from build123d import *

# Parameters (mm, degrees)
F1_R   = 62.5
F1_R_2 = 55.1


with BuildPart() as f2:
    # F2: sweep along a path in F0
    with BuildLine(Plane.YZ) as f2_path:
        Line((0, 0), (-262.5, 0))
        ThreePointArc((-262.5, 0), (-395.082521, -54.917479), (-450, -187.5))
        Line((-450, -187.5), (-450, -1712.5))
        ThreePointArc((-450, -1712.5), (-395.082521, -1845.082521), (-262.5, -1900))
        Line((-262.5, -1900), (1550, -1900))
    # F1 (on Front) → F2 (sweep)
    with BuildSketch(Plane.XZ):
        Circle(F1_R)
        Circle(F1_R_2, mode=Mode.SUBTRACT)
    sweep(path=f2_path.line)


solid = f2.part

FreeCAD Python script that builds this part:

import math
import FreeCAD as App
import Part
import Sketcher
from FreeCAD import Vector
Q = App.Units.Quantity

doc = App.newDocument("Part")
params = doc.addObject("Spreadsheet::Sheet", "Params")
for row, (alias, value) in enumerate([
    ("sketch1_diameter", "125 mm"),
    ("sketch1_diameter2", "110.2 mm"),
    ("sketch2_radius", "187.500002 mm"),
    ("sketch2_height", "1525 mm"),
    ("sketch2_width", "262.5 mm"),
    ("sketch2_width2", "1812.5 mm"),
], start=1):
    params.set(f"A{row}", alias)
    params.set(f"B{row}", "=" + value)
    params.setAlias(f"B{row}", alias)

body = doc.addObject("PartDesign::Body", "Body")

sketch1 = doc.addObject("Sketcher::SketchObject", "Sketch")
body.addObject(sketch1)
sketch1.AttachmentSupport = (doc.XZ_Plane, [""])
sketch1.MapMode = "FlatFace"
sketch1.addGeometry(Part.Circle(Vector(0, 0, 0), Vector(0, 0, 1), 62.5), False)
sketch1.addGeometry(Part.Circle(Vector(0, 0, 0), Vector(0, 0, 1), 55.1), False)
sketch1.addConstraint(Sketcher.Constraint("Coincident", 0, 3, -1, 1))
sketch1.addConstraint(Sketcher.Constraint("Coincident", 1, 3, -1, 1))
sketch1.addConstraint(Sketcher.Constraint("Diameter", 0, Q("125 mm")))
sketch1.addConstraint(Sketcher.Constraint("Diameter", 1, Q("110.2 mm")))
sketch1.setExpression("Constraints[2]", "Params.sketch1_diameter")
sketch1.setExpression("Constraints[3]", "Params.sketch1_diameter2")

sketch2 = doc.addObject("Sketcher::SketchObject", "Sketch001")
body.addObject(sketch2)
sketch2.AttachmentSupport = (doc.YZ_Plane, [""])
sketch2.MapMode = "FlatFace"
sketch2.addGeometry(Part.LineSegment(Vector(0, 0, 0), Vector(-262.5, 0, 0)), False)
sketch2.addGeometry(Part.ArcOfCircle(Part.Circle(Vector(-262.499998, -187.500002, 0), Vector(0, 0, 1), 187.500002), math.radians(90), math.radians(180)), False)
sketch2.addGeometry(Part.LineSegment(Vector(-450, -187.5, 0), Vector(-450, -1712.5, 0)), False)
sketch2.addGeometry(Part.ArcOfCircle(Part.Circle(Vector(-262.499998, -1712.499998, 0), Vector(0, 0, 1), 187.500002), math.radians(-180), math.radians(-90)), False)
sketch2.addGeometry(Part.LineSegment(Vector(-262.5, -1900, 0), Vector(1550, -1900, 0)), False)
sketch2.addConstraint(Sketcher.Constraint("Tangent", 0, 2, 1, 1))
sketch2.addConstraint(Sketcher.Constraint("Tangent", 1, 2, 2, 1))
sketch2.addConstraint(Sketcher.Constraint("Tangent", 2, 2, 3, 1))
sketch2.addConstraint(Sketcher.Constraint("Tangent", 3, 2, 4, 1))
sketch2.addConstraint(Sketcher.Constraint("Horizontal", 0))
sketch2.addConstraint(Sketcher.Constraint("Vertical", 2))
sketch2.addConstraint(Sketcher.Constraint("Horizontal", 4))
sketch2.addConstraint(Sketcher.Constraint("Coincident", 0, 1, -1, 1))
sketch2.addConstraint(Sketcher.Constraint("Equal", 1, 3))
sketch2.addConstraint(Sketcher.Constraint("Radius", 1, Q("187.500002 mm")))
sketch2.addConstraint(Sketcher.Constraint("DistanceY", 2, 2, 2, 1, Q("1525 mm")))
sketch2.addConstraint(Sketcher.Constraint("DistanceX", 0, 2, 0, 1, Q("262.5 mm")))
sketch2.addConstraint(Sketcher.Constraint("DistanceX", 4, 1, 4, 2, Q("1812.5 mm")))
sketch2.setExpression("Constraints[9]", "Params.sketch2_radius")
sketch2.setExpression("Constraints[10]", "Params.sketch2_height")
sketch2.setExpression("Constraints[11]", "Params.sketch2_width")
sketch2.setExpression("Constraints[12]", "Params.sketch2_width2")
doc.recompute()

additivepipe = doc.addObject("PartDesign::AdditivePipe", "AdditivePipe")
body.addObject(additivepipe)
additivepipe.Profile = sketch1
additivepipe.Spine = (sketch2, ["Edge1", "Edge2", "Edge3", "Edge4", "Edge5"])

doc.recompute()
